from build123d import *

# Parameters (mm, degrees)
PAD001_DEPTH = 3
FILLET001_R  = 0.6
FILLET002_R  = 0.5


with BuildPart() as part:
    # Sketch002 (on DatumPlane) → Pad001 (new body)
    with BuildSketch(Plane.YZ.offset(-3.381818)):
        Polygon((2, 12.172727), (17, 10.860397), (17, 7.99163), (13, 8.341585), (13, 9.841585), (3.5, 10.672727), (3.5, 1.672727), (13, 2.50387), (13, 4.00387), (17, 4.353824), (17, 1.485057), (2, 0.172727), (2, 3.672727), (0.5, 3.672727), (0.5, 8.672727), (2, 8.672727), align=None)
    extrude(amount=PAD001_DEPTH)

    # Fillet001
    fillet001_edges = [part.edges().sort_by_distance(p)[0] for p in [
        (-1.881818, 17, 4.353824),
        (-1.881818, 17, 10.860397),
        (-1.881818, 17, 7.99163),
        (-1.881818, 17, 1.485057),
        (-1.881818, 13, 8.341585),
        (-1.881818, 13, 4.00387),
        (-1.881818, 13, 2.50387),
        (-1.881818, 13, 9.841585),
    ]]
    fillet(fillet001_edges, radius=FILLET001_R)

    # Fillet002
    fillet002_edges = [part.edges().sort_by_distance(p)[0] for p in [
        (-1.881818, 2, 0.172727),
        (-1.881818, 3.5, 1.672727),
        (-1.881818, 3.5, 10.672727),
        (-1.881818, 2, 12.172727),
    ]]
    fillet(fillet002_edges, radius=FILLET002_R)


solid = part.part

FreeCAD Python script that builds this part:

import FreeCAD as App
import Part
import Sketcher

V = App.Vector
Q = App.Units.Quantity


def edges_at(feature, points):
    """Names of the edges that pass closest to the given points."""
    edges = feature.Shape.Edges
    near = lambda p: min(range(len(edges)), key=lambda i: edges[i].distToShape(Part.Vertex(*p))[0])
    return sorted({f"Edge{near(p) + 1}" for p in points})

doc = App.newDocument("Part")
body = doc.addObject("PartDesign::Body", "Body")

sketch1 = doc.addObject("Sketcher::SketchObject", "Sketch")
body.addObject(sketch1)
sketch1.AttachmentSupport = (doc.YZ_Plane, [""])
sketch1.MapMode = "FlatFace"
sketch1.AttachmentOffset = App.Placement(V(0, 0, -3.381818), App.Rotation())
sketch1.addGeometry(Part.LineSegment(V(17, 10.860397, 0), V(2, 12.172727, 0)), False)
sketch1.addGeometry(Part.LineSegment(V(2, 12.172727, 0), V(2, 8.672727, 0)), False)
sketch1.addGeometry(Part.LineSegment(V(2, 8.672727, 0), V(0.5, 8.672727, 0)), False)
sketch1.addGeometry(Part.LineSegment(V(0.5, 8.672727, 0), V(0.5, 3.672727, 0)), False)
sketch1.addGeometry(Part.LineSegment(V(0.5, 3.672727, 0), V(2, 3.672727, 0)), False)
sketch1.addGeometry(Part.LineSegment(V(2, 3.672727, 0), V(2, 0.172727, 0)), False)
sketch1.addGeometry(Part.LineSegment(V(2, 0.172727, 0), V(17, 1.485057, 0)), False)
sketch1.addGeometry(Part.LineSegment(V(17, 1.485057, 0), V(17, 4.353824, 0)), False)
sketch1.addGeometry(Part.LineSegment(V(17, 4.353824, 0), V(13, 4.00387, 0)), False)
sketch1.addGeometry(Part.LineSegment(V(13, 4.00387, 0), V(13, 2.50387, 0)), False)
sketch1.addGeometry(Part.LineSegment(V(13, 2.50387, 0), V(3.5, 1.672727, 0)), False)
sketch1.addGeometry(Part.LineSegment(V(3.5, 1.672727, 0), V(3.5, 10.672727, 0)), False)
sketch1.addGeometry(Part.LineSegment(V(3.5, 10.672727, 0), V(13, 9.841585, 0)), False)
sketch1.addGeometry(Part.LineSegment(V(13, 9.841585, 0), V(13, 8.341585, 0)), False)
sketch1.addGeometry(Part.LineSegment(V(13, 8.341585, 0), V(17, 7.99163, 0)), False)
sketch1.addGeometry(Part.LineSegment(V(17, 7.99163, 0), V(17, 10.860397, 0)), False)
sketch1.addConstraint(Sketcher.Constraint("Coincident", 0, 2, 1, 1))
sketch1.addConstraint(Sketcher.Constraint("Coincident", 1, 2, 2, 1))
sketch1.addConstraint(Sketcher.Constraint("Coincident", 2, 2, 3, 1))
sketch1.addConstraint(Sketcher.Constraint("Coincident", 3, 2, 4, 1))
sketch1.addConstraint(Sketcher.Constraint("Coincident", 4, 2, 5, 1))
sketch1.addConstraint(Sketcher.Constraint("Coincident", 5, 2, 6, 1))
sketch1.addConstraint(Sketcher.Constraint("Coincident", 6, 2, 7, 1))
sketch1.addConstraint(Sketcher.Constraint("Coincident", 7, 2, 8, 1))
sketch1.addConstraint(Sketcher.Constraint("Coincident", 8, 2, 9, 1))
sketch1.addConstraint(Sketcher.Constraint("Coincident", 9, 2, 10, 1))
sketch1.addConstraint(Sketcher.Constraint("Coincident", 10, 2, 11, 1))
sketch1.addConstraint(Sketcher.Constraint("Coincident", 11, 2, 12, 1))
sketch1.addConstraint(Sketcher.Constraint("Coincident", 12, 2, 13, 1))
sketch1.addConstraint(Sketcher.Constraint("Coincident", 13, 2, 14, 1))
sketch1.addConstraint(Sketcher.Constraint("Coincident", 14, 2, 15, 1))
sketch1.addConstraint(Sketcher.Constraint("Coincident", 15, 2, 0, 1))
sketch1.addConstraint(Sketcher.Constraint("Vertical", 1))
sketch1.addConstraint(Sketcher.Constraint("Horizontal", 2))
sketch1.addConstraint(Sketcher.Constraint("Vertical", 3))
sketch1.addConstraint(Sketcher.Constraint("Horizontal", 4))
sketch1.addConstraint(Sketcher.Constraint("Vertical", 5))
sketch1.addConstraint(Sketcher.Constraint("Vertical", 7))
sketch1.addConstraint(Sketcher.Constraint("Vertical", 9))
sketch1.addConstraint(Sketcher.Constraint("Vertical", 11))
sketch1.addConstraint(Sketcher.Constraint("Vertical", 13))
sketch1.addConstraint(Sketcher.Constraint("Vertical", 15))
sketch1.addConstraint(Sketcher.Constraint("Parallel", 6, 8))
sketch1.addConstraint(Sketcher.Constraint("Parallel", 8, 10))
sketch1.addConstraint(Sketcher.Constraint("Parallel", 0, 12))
sketch1.addConstraint(Sketcher.Constraint("Parallel", 12, 14))
sketch1.addConstraint(Sketcher.Constraint("Vertical", 1, 2, 4, 2))
sketch1.addConstraint(Sketcher.Constraint("Vertical", 9, 2, 12, 2))
sketch1.addConstraint(Sketcher.Constraint("Vertical", 7, 2, 14, 2))
sketch1.addConstraint(Sketcher.Constraint("Equal", 1, 5))
sketch1.addConstraint(Sketcher.Constraint("Equal", 4, 9))
sketch1.addConstraint(Sketcher.Constraint("Equal", 9, 13))
sketch1.addConstraint(Sketcher.Constraint("Equal", 7, 15))
sketch1.addConstraint(Sketcher.Constraint("Equal", 0, 6))
sketch1.addConstraint(Sketcher.Constraint("DistanceY", 3, 2, 3, 1, 5.0))
sketch1.addConstraint(Sketcher.Constraint("DistanceY", 11, 1, 11, 2, 9.0))
sketch1.addConstraint(Sketcher.Constraint("Angle", 0, Q("175 deg")))
sketch1.addConstraint(Sketcher.Constraint("DistanceX", 2, 2, 2, 1, 1.5))
sketch1.addConstraint(Sketcher.Constraint("DistanceY", 1, 2, 1, 1, 3.5))
sketch1.addConstraint(Sketcher.Constraint("DistanceX", -1, 1, 0, 2, 2.0))
sketch1.addConstraint(Sketcher.Constraint("DistanceX", -1, 1, 6, 2, 17.0))
sketch1.addConstraint(Sketcher.Constraint("DistanceX", -1, 1, 8, 2, 13.0))
sketch1.addConstraint(Sketcher.Constraint("DistanceX", 3, 2, 10, 2, 3.0))
sketch1.addConstraint(Sketcher.Constraint("DistanceY", -1, 1, 8, 2, 4.00387))
pad1 = doc.addObject("PartDesign::Pad", "Pad")
body.addObject(pad1)
pad1.Profile = sketch1
pad1.Length = 3
doc.recompute()

fillet = doc.addObject("PartDesign::Fillet", "Fillet")
body.addObject(fillet)
fillet.Base = (pad1, edges_at(pad1, [
    (-1.882, 17, 4.354),
    (-1.882, 17, 10.86),
    (-1.882, 17, 7.992),
    (-1.882, 17, 1.485),
    (-1.882, 13, 8.342),
    (-1.882, 13, 4.004),
    (-1.882, 13, 2.504),
    (-1.882, 13, 9.842),
]))
fillet.Radius = 0.6
doc.recompute()

fillet2 = doc.addObject("PartDesign::Fillet", "Fillet001")
body.addObject(fillet2)
fillet2.Base = (fillet, edges_at(fillet, [
    (-1.882, 2, 0.173),
    (-1.882, 3.5, 1.673),
    (-1.882, 3.5, 10.673),
    (-1.882, 2, 12.173),
]))
fillet2.Radius = 0.5

doc.recompute()
